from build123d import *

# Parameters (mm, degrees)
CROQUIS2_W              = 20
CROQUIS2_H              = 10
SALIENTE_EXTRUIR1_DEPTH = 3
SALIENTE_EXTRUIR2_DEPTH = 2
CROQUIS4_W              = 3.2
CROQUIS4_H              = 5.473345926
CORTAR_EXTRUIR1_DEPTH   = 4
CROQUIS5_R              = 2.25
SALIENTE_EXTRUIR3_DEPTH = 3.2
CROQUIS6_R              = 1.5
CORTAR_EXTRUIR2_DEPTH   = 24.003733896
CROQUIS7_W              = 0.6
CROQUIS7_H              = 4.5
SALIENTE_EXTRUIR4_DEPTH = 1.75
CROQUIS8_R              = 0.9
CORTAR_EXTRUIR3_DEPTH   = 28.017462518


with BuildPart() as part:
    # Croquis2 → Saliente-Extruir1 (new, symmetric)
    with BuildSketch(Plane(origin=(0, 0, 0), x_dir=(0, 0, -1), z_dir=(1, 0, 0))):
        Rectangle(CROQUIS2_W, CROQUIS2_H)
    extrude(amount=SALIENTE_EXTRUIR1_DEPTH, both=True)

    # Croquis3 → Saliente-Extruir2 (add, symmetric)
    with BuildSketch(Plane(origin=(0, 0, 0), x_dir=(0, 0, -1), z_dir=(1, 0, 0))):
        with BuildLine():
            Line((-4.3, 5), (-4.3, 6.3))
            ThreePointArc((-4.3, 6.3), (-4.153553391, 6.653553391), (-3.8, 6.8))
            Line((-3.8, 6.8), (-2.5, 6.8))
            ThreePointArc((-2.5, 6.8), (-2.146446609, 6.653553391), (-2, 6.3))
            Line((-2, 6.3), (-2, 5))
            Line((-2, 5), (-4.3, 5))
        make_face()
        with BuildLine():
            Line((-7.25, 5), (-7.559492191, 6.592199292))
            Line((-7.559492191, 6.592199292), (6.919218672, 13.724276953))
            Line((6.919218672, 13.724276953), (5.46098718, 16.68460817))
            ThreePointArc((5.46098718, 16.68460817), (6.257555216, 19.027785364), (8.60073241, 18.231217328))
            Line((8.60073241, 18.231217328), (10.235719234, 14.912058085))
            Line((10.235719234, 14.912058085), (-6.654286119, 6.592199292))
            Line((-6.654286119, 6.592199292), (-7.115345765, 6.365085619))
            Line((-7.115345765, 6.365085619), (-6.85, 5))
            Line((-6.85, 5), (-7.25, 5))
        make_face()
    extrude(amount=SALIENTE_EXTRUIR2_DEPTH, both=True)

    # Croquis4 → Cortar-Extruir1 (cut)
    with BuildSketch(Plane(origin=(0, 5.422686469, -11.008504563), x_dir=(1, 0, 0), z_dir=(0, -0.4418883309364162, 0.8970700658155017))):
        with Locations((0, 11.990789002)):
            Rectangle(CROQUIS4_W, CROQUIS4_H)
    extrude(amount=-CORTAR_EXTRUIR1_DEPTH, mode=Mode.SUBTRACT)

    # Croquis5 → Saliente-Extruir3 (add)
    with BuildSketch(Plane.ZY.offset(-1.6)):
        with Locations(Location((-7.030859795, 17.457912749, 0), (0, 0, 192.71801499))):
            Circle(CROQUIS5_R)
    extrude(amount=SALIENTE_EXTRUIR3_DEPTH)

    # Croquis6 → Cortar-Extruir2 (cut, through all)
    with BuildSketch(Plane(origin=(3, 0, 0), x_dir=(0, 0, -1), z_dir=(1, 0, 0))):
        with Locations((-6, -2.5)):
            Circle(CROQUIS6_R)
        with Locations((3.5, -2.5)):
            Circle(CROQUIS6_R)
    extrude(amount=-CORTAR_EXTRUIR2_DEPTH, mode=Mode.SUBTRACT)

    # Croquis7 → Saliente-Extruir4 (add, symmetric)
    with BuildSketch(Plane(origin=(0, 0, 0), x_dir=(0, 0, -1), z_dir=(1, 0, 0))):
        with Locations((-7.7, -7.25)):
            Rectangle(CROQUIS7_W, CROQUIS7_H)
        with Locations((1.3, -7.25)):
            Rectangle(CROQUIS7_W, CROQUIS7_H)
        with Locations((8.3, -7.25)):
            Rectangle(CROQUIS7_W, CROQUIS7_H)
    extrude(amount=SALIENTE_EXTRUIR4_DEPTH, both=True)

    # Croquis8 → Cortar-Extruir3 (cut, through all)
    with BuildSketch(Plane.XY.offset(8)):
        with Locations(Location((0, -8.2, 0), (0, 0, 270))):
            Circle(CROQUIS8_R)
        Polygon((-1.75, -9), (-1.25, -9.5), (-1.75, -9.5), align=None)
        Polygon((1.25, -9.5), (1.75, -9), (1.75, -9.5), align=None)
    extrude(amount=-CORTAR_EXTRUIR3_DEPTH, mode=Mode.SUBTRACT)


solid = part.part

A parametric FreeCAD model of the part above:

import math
import FreeCAD as App
import Part
import Sketcher

V = App.Vector
Q = App.Units.Quantity

doc = App.newDocument("Part")
body = doc.addObject("PartDesign::Body", "Body")

# Sketch on YZ plane
sketch1 = body.newObject("Sketcher::SketchObject", "Sketch")
sketch1.AttachmentSupport = (doc.getObject("YZ_Plane"), [""])
sketch1.MapMode = "FlatFace"
sketch1.addGeometry([
    Part.LineSegment(V(5, 10, 0), V(-5, 10, 0)),
    Part.LineSegment(V(-5, 10, 0), V(-5, -10, 0)),
    Part.LineSegment(V(-5, -10, 0), V(5, -10, 0)),
    Part.LineSegment(V(5, -10, 0), V(5, 10, 0)),
], False)
sketch1.addConstraint([
    Sketcher.Constraint("Coincident", 0, 2, 1, 1),
    Sketcher.Constraint("Coincident", 1, 2, 2, 1),
    Sketcher.Constraint("Coincident", 2, 2, 3, 1),
    Sketcher.Constraint("Coincident", 3, 2, 0, 1),
    Sketcher.Constraint("Horizontal", 0),
    Sketcher.Constraint("Vertical", 1),
    Sketcher.Constraint("Horizontal", 2),
    Sketcher.Constraint("Vertical", 3),
    Sketcher.Constraint("Symmetric", 0, 2, 2, 2, -1, 1),
    Sketcher.Constraint("DistanceX", 0, 2, 0, 1, 10.0),
    Sketcher.Constraint("DistanceY", 1, 2, 1, 1, 20.0),
])
pad1 = body.newObject("PartDesign::Pad", "Pad")
pad1.Profile = sketch1
pad1.Length = 6
pad1.Midplane = True

# Sketch on YZ plane
sketch2 = body.newObject("Sketcher::SketchObject", "Sketch001")
sketch2.AttachmentSupport = (doc.getObject("YZ_Plane"), [""])
sketch2.MapMode = "FlatFace"
sketch2.addGeometry([
    Part.LineSegment(V(6.3, 4.3, 0), V(5, 4.3, 0)),  # 0
    Part.LineSegment(V(5, 4.3, 0), V(5, 2, 0)),  # 1
    Part.LineSegment(V(5, 2, 0), V(6.3, 2, 0)),  # 2
    Part.ArcOfCircle(Part.Circle(V(6.3, 2.5, 0), V(0, 0, 1), 0.5), math.radians(-90), math.radians(0)),  # 3
    Part.LineSegment(V(6.8, 2.5, 0), V(6.8, 3.8, 0)),  # 4
    Part.ArcOfCircle(Part.Circle(V(6.3, 3.8, 0), V(0, 0, 1), 0.5), math.radians(0), math.radians(90)),  # 5
    Part.LineSegment(V(6.592199, 7.559492, 0), V(5, 7.25, 0)),  # 6
    Part.LineSegment(V(5, 7.25, 0), V(5, 6.85, 0)),  # 7
    Part.LineSegment(V(5, 6.85, 0), V(6.365086, 7.115346, 0)),  # 8
    Part.LineSegment(V(6.365086, 7.115346, 0), V(6.592199, 6.654286, 0)),  # 9
    Part.LineSegment(V(6.592199, 6.654286, 0), V(14.912058, -10.235719, 0)),  # 10
    Part.LineSegment(V(14.912058, -10.235719, 0), V(18.231217, -8.600732, 0)),  # 11
    Part.ArcOfCircle(Part.Circle(V(17.457913, -7.03086, 0), V(0, 0, 1), 1.75), math.radians(-63.775574), math.radians(116.224426)),  # 12
    Part.LineSegment(V(16.684608, -5.460987, 0), V(13.724277, -6.919219, 0)),  # 13
    Part.LineSegment(V(13.724277, -6.919219, 0), V(6.592199, 7.559492, 0)),  # 14
], False)
sketch2.addConstraint([
    Sketcher.Constraint("Coincident", 0, 2, 1, 1),
    Sketcher.Constraint("Coincident", 1, 2, 2, 1),
    Sketcher.Constraint("Tangent", 2, 2, 3, 1),
    Sketcher.Constraint("Tangent", 3, 2, 4, 1),
    Sketcher.Constraint("Tangent", 4, 2, 5, 1),
    Sketcher.Constraint("Tangent", 5, 2, 0, 1),
    Sketcher.Constraint("Coincident", 6, 2, 7, 1),
    Sketcher.Constraint("Coincident", 7, 2, 8, 1),
    Sketcher.Constraint("Coincident", 8, 2, 9, 1),
    Sketcher.Constraint("Coincident", 9, 2, 10, 1),
    Sketcher.Constraint("Coincident", 10, 2, 11, 1),
    Sketcher.Constraint("Tangent", 11, 2, 12, 1),
    Sketcher.Constraint("Tangent", 12, 2, 13, 1),
    Sketcher.Constraint("Coincident", 13, 2, 14, 1),
    Sketcher.Constraint("Coincident", 14, 2, 6, 1),
    Sketcher.Constraint("Horizontal", 0),
    Sketcher.Constraint("Vertical", 1),
    Sketcher.Constraint("Horizontal", 2),
    Sketcher.Constraint("Vertical", 4),
    Sketcher.Constraint("Vertical", 7),
    Sketcher.Constraint("Equal", 3, 5),
    Sketcher.Constraint("Parallel", 6, 8),
    Sketcher.Constraint("Parallel", 9, 10),
    Sketcher.Constraint("Perpendicular", 10, 11),
    Sketcher.Constraint("Parallel", 11, 13),
    Sketcher.Constraint("Perpendicular", 13, 14),
    Sketcher.Constraint("Vertical", 1, 2, 6, 2),
    Sketcher.Constraint("Vertical", 9, 2, 14, 2),
    Sketcher.Constraint("Equal", 2, 4),
    Sketcher.Constraint("Radius", 3, 0.5),
    Sketcher.Constraint("Angle", 6, Q("-169 deg")),
    Sketcher.Constraint("Radius", 12, 1.75),
    Sketcher.Constraint("DistanceX", 0, 2, 0, 1, 1.3),
    Sketcher.Constraint("DistanceY", 7, 2, 7, 1, 0.4),
    Sketcher.Constraint("DistanceX", -1, 1, 0, 2, 5.0),
    Sketcher.Constraint("DistanceY", -1, 1, 1, 2, 2.0),
    Sketcher.Constraint("Distance", 11, 3.7),
    Sketcher.Constraint("Distance", 13, 3.3),
    Sketcher.Constraint("Distance", 14, 16.14),
    Sketcher.Constraint("DistanceY", -1, 1, 6, 2, 7.25),
    Sketcher.Constraint("Distance", 6, 1.622),
    Sketcher.Constraint("DistanceY", 10, 2, 13, 2, 3.316501),
])
pad2 = body.newObject("PartDesign::Pad", "Pad001")
pad2.Profile = sketch2
pad2.Length = 4
pad2.Midplane = True

# Sketch on an angled plane
sketch3 = body.newObject("Sketcher::SketchObject", "Sketch002")
sketch3.Placement = App.Placement(V(0, 5.422686, -11.008505), App.Rotation(V(1, 0, 0), V(0, 0.897070066, 0.441888331), V(0, -0.441888331, 0.897070066), "ZXY"))
sketch3.addGeometry([
    Part.LineSegment(V(-1.6, 14.727462, 0), V(-1.6, 9.254116, 0)),
    Part.LineSegment(V(-1.6, 9.254116, 0), V(1.6, 9.254116, 0)),
    Part.LineSegment(V(1.6, 9.254116, 0), V(1.6, 14.727462, 0)),
    Part.LineSegment(V(1.6, 14.727462, 0), V(-1.6, 14.727462, 0)),
], False)
sketch3.addConstraint([
    Sketcher.Constraint("Coincident", 0, 2, 1, 1),
    Sketcher.Constraint("Coincident", 1, 2, 2, 1),
    Sketcher.Constraint("Coincident", 2, 2, 3, 1),
    Sketcher.Constraint("Coincident", 3, 2, 0, 1),
    Sketcher.Constraint("Vertical", 0),
    Sketcher.Constraint("Horizontal", 1),
    Sketcher.Constraint("Vertical", 2),
    Sketcher.Constraint("Horizontal", 3),
    Sketcher.Constraint("DistanceX", 1, 1, 1, 2, 3.2),
    Sketcher.Constraint("DistanceX", 0, 2, -1, 1, 1.6),
    Sketcher.Constraint("DistanceY", 0, 2, 0, 1, 5.473346),
    Sketcher.Constraint("DistanceY", -1, 1, 2, 2, 14.727462),
])
pocket1 = body.newObject("PartDesign::Pocket", "Pocket")
pocket1.Profile = sketch3
pocket1.Length = 4

# Sketch on YZ plane
sketch4 = body.newObject("Sketcher::SketchObject", "Sketch003")
sketch4.AttachmentSupport = (doc.getObject("YZ_Plane"), [""])
sketch4.MapMode = "FlatFace"
sketch4.AttachmentOffset = App.Placement(V(0, 0, 1.6), App.Rotation())
sketch4.addGeometry(Part.Circle(V(17.457913, -7.03086, 0), V(0, 0, 1), 2.25), False)
sketch4.addConstraint([
    Sketcher.Constraint("Diameter", 0, 4.5),
    Sketcher.Constraint("DistanceY", 0, 3, -1, 1, 7.03086),
    Sketcher.Constraint("DistanceX", -1, 1, 0, 3, 17.457913),
])
pad3 = body.newObject("PartDesign::Pad", "Pad002")
pad3.Profile = sketch4
pad3.Length = 3.2
pad3.Reversed = True

# Sketch on YZ plane
sketch5 = body.newObject("Sketcher::SketchObject", "Sketch004")
sketch5.AttachmentSupport = (doc.getObject("YZ_Plane"), [""])
sketch5.MapMode = "FlatFace"
sketch5.AttachmentOffset = App.Placement(V(0, 0, 3), App.Rotation())
sketch5.addGeometry([
    Part.Circle(V(-2.5, 6, 0), V(0, 0, 1), 1.5),
    Part.Circle(V(-2.5, -3.5, 0), V(0, 0, 1), 1.5),
], False)
sketch5.addConstraint([
    Sketcher.Constraint("Equal", 0, 1),
    Sketcher.Constraint("Vertical", 0, 3, 1, 3),
    Sketcher.Constraint("Diameter", 0, 3.0),
    Sketcher.Constraint("DistanceY", -1, 1, 0, 3, 6.0),
    Sketcher.Constraint("DistanceX", 0, 3, -1, 1, 2.5),
    Sketcher.Constraint("DistanceY", 1, 3, -1, 1, 3.5),
])
pocket2 = body.newObject("PartDesign::Pocket", "Pocket001")
pocket2.Profile = sketch5
pocket2.Type = "ThroughAll"

# Sketch on YZ plane
sketch6 = body.newObject("Sketcher::SketchObject", "Sketch005")
sketch6.AttachmentSupport = (doc.getObject("YZ_Plane"), [""])
sketch6.MapMode = "FlatFace"
sketch6.addGeometry([
    Part.LineSegment(V(-5, 8, 0), V(-9.5, 8, 0)),  # 0
    Part.LineSegment(V(-9.5, 8, 0), V(-9.5, 7.4, 0)),  # 1
    Part.LineSegment(V(-9.5, 7.4, 0), V(-5, 7.4, 0)),  # 2
    Part.LineSegment(V(-5, 7.4, 0), V(-5, 8, 0)),  # 3
    Part.LineSegment(V(-5, -1, 0), V(-9.5, -1, 0)),  # 4
    Part.LineSegment(V(-9.5, -1, 0), V(-9.5, -1.6, 0)),  # 5
    Part.LineSegment(V(-9.5, -1.6, 0), V(-5, -1.6, 0)),  # 6
    Part.LineSegment(V(-5, -1.6, 0), V(-5, -1, 0)),  # 7
    Part.LineSegment(V(-5, -8, 0), V(-9.5, -8, 0)),  # 8
    Part.LineSegment(V(-9.5, -8, 0), V(-9.5, -8.6, 0)),  # 9
    Part.LineSegment(V(-9.5, -8.6, 0), V(-5, -8.6, 0)),  # 10
    Part.LineSegment(V(-5, -8.6, 0), V(-5, -8, 0)),  # 11
], False)
sketch6.addConstraint([
    Sketcher.Constraint("Coincident", 0, 2, 1, 1),
    Sketcher.Constraint("Coincident", 1, 2, 2, 1),
    Sketcher.Constraint("Coincident", 2, 2, 3, 1),
    Sketcher.Constraint("Coincident", 3, 2, 0, 1),
    Sketcher.Constraint("Coincident", 4, 2, 5, 1),
    Sketcher.Constraint("Coincident", 5, 2, 6, 1),
    Sketcher.Constraint("Coincident", 6, 2, 7, 1),
    Sketcher.Constraint("Coincident", 7, 2, 4, 1),
    Sketcher.Constraint("Coincident", 8, 2, 9, 1),
    Sketcher.Constraint("Coincident", 9, 2, 10, 1),
    Sketcher.Constraint("Coincident", 10, 2, 11, 1),
    Sketcher.Constraint("Coincident", 11, 2, 8, 1),
    Sketcher.Constraint("Horizontal", 0),
    Sketcher.Constraint("Vertical", 1),
    Sketcher.Constraint("Horizontal", 2),
    Sketcher.Constraint("Vertical", 3),
    Sketcher.Constraint("Horizontal", 4),
    Sketcher.Constraint("Vertical", 5),
    Sketcher.Constraint("Horizontal", 6),
    Sketcher.Constraint("Vertical", 7),
    Sketcher.Constraint("Horizontal", 8),
    Sketcher.Constraint("Vertical", 9),
    Sketcher.Constraint("Horizontal", 10),
    Sketcher.Constraint("Vertical", 11),
    Sketcher.Constraint("Symmetric", 0, 2, 8, 2, -1),
    Sketcher.Constraint("Vertical", 1, 2, 4, 2),
    Sketcher.Constraint("Vertical", 3, 2, 6, 2),
    Sketcher.Constraint("Vertical", 7, 2, 10, 2),
    Sketcher.Constraint("Equal", 3, 5),
    Sketcher.Constraint("Equal", 7, 9),
    Sketcher.Constraint("DistanceX", 0, 2, 0, 1, 4.5),
    Sketcher.Constraint("DistanceY", 1, 2, 1, 1, 0.6),
    Sketcher.Constraint("DistanceY", -1, 1, 0, 2, 8.0),
    Sketcher.Constraint("DistanceX", 2, 2, -1, 1, 5.0),
    Sketcher.Constraint("DistanceY", 4, 2, -1, 1, 1.0),
])
pad4 = body.newObject("PartDesign::Pad", "Pad003")
pad4.Profile = sketch6
pad4.Length = 3.5
pad4.Midplane = True

# Sketch on XY plane
sketch7 = body.newObject("Sketcher::SketchObject", "Sketch006")
sketch7.AttachmentSupport = (doc.getObject("XY_Plane"), [""])
sketch7.MapMode = "FlatFace"
sketch7.AttachmentOffset = App.Placement(V(0, 0, 8), App.Rotation())
sketch7.addGeometry([
    Part.Circle(V(0, -8.2, 0), V(0, 0, 1), 0.9),  # 0
    Part.LineSegment(V(-1.25, -9.5, 0), V(-1.75, -9, 0)),  # 1
    Part.LineSegment(V(-1.75, -9, 0), V(-1.75, -9.5, 0)),  # 2
    Part.LineSegment(V(-1.75, -9.5, 0), V(-1.25, -9.5, 0)),  # 3
    Part.LineSegment(V(1.75, -9, 0), V(1.25, -9.5, 0)),  # 4
    Part.LineSegment(V(1.25, -9.5, 0), V(1.75, -9.5, 0)),  # 5
    Part.LineSegment(V(1.75, -9.5, 0), V(1.75, -9, 0)),  # 6
], False)
sketch7.addConstraint([
    Sketcher.Constraint("Coincident", 1, 2, 2, 1),
    Sketcher.Constraint("Coincident", 2, 2, 3, 1),
    Sketcher.Constraint("Coincident", 3, 2, 1, 1),
    Sketcher.Constraint("Coincident", 4, 2, 5, 1),
    Sketcher.Constraint("Coincident", 5, 2, 6, 1),
    Sketcher.Constraint("Coincident", 6, 2, 4, 1),
    Sketcher.Constraint("Vertical", 2),
    Sketcher.Constraint("Horizontal", 3),
    Sketcher.Constraint("Horizontal", 5),
    Sketcher.Constraint("Vertical", 6),
    Sketcher.Constraint("Symmetric", 3, 2, 4, 2, -2),
    Sketcher.Constraint("Symmetric", 1, 2, 6, 2, -2),
    Sketcher.Constraint("PointOnObject", 0, 3, -2),
    Sketcher.Constraint("Perpendicular", 1, 4),
    Sketcher.Constraint("Diameter", 0, 1.8),
    Sketcher.Constraint("DistanceX", 3, 1, 3, 2, 0.5),
    Sketcher.Constraint("DistanceY", 1, 2, -1, 1, 9.0),
    Sketcher.Constraint("DistanceX", 2, 2, 4, 2, 3.0),
    Sketcher.Constraint("DistanceY", 0, 3, -1, 1, 8.2),
])
pocket3 = body.newObject("PartDesign::Pocket", "Pocket002")
pocket3.Profile = sketch7
pocket3.Type = "ThroughAll"

doc.recompute()
